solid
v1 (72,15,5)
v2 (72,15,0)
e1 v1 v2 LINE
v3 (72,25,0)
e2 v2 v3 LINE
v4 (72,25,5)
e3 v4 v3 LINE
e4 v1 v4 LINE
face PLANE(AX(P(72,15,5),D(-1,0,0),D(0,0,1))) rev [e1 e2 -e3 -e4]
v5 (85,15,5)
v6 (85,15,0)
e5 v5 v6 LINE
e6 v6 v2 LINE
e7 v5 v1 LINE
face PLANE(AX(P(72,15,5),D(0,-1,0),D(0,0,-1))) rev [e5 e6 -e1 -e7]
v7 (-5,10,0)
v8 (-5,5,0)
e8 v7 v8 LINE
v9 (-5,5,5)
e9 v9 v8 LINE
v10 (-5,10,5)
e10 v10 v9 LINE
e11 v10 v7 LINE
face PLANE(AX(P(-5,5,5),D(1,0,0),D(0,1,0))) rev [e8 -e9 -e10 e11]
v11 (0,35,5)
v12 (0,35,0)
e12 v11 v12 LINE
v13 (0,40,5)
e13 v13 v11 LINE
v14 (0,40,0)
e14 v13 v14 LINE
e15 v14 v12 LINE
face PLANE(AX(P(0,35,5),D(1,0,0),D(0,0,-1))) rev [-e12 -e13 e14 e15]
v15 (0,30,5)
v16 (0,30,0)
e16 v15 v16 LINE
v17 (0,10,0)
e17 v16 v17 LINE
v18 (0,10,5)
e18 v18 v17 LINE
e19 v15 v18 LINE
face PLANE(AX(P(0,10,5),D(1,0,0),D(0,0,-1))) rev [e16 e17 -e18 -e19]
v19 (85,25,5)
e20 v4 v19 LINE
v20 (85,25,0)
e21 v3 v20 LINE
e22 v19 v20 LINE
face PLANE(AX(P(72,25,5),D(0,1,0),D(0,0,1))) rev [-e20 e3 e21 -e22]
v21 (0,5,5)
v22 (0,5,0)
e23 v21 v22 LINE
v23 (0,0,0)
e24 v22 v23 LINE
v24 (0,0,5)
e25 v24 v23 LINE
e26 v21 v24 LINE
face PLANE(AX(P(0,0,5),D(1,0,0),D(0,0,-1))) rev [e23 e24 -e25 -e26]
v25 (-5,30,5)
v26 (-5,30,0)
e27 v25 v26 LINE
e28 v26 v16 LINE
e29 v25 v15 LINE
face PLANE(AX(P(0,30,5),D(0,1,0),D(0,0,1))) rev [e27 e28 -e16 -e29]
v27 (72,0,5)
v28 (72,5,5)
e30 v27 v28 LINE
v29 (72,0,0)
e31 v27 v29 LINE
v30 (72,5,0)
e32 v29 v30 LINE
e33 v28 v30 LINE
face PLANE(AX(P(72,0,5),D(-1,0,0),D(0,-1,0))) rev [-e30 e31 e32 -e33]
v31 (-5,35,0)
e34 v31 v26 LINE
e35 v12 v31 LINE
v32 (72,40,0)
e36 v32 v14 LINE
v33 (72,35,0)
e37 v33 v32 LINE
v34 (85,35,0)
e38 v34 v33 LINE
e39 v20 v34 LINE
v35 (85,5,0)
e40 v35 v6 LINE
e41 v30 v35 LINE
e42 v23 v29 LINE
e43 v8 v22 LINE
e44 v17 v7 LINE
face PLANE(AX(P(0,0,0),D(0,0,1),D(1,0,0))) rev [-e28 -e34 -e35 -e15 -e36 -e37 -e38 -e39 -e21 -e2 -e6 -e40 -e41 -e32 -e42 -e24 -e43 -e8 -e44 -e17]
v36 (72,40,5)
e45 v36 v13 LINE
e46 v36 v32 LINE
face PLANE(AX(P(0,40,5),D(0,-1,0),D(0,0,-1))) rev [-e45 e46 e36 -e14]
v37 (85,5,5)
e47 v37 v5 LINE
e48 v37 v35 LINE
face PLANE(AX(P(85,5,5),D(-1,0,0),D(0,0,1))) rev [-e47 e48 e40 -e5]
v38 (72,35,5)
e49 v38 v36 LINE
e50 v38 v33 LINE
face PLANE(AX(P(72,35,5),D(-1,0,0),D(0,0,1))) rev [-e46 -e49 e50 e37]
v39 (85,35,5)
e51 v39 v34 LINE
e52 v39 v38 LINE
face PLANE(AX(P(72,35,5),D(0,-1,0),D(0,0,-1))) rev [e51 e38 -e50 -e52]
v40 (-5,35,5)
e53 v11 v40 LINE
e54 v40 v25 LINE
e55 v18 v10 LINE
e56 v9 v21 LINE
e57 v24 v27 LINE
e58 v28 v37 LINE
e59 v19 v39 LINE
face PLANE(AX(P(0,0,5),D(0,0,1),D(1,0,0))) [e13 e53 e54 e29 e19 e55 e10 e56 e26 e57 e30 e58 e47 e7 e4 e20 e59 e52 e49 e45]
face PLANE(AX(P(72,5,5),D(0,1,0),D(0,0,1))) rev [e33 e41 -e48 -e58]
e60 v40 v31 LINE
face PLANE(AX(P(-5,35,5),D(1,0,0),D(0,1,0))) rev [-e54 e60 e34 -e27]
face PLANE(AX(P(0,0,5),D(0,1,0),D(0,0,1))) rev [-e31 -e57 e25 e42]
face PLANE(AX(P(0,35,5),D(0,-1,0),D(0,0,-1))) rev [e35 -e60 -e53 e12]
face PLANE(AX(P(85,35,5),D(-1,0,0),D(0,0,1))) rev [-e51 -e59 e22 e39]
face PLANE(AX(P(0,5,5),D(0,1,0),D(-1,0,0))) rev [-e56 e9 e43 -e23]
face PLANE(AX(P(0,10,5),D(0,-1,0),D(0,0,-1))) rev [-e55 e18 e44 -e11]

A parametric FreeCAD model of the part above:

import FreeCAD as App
import Part
import Sketcher

V = App.Vector

doc = App.newDocument("Part")
params = doc.addObject("Spreadsheet::Sheet", "Params")
for row, (alias, value) in enumerate([
    ("sketch1_width", "72 mm"),
    ("sketch1_width2", "13 mm"),
    ("sketch1_width3", "5 mm"),
    ("sketch1_height", "10 mm"),
    ("pad1_length", "5 mm"),
], start=1):
    params.set(f"A{row}", alias)
    params.set(f"B{row}", "=" + value)
    params.setAlias(f"B{row}", alias)

body = doc.addObject("PartDesign::Body", "Body")

# Sketch on XY plane
sketch1 = body.newObject("Sketcher::SketchObject", "Sketch")
sketch1.AttachmentSupport = (doc.getObject("XY_Plane"), [""])
sketch1.MapMode = "FlatFace"
sketch1.addGeometry([
    Part.LineSegment(V(0, 0, 0), V(72, 0, 0)),  # 0
    Part.LineSegment(V(72, 0, 0), V(72, 5, 0)),  # 1
    Part.LineSegment(V(72, 5, 0), V(85, 5, 0)),  # 2
    Part.LineSegment(V(85, 5, 0), V(85, 15, 0)),  # 3
    Part.LineSegment(V(85, 15, 0), V(72, 15, 0)),  # 4
    Part.LineSegment(V(72, 15, 0), V(72, 25, 0)),  # 5
    Part.LineSegment(V(72, 25, 0), V(85, 25, 0)),  # 6
    Part.LineSegment(V(85, 25, 0), V(85, 35, 0)),  # 7
    Part.LineSegment(V(85, 35, 0), V(72, 35, 0)),  # 8
    Part.LineSegment(V(72, 35, 0), V(72, 40, 0)),  # 9
    Part.LineSegment(V(72, 40, 0), V(0, 40, 0)),  # 10
    Part.LineSegment(V(0, 40, 0), V(0, 35, 0)),  # 11
    Part.LineSegment(V(0, 35, 0), V(-5, 35, 0)),  # 12
    Part.LineSegment(V(-5, 35, 0), V(-5, 30, 0)),  # 13
    Part.LineSegment(V(-5, 30, 0), V(0, 30, 0)),  # 14
    Part.LineSegment(V(0, 30, 0), V(0, 10, 0)),  # 15
    Part.LineSegment(V(0, 10, 0), V(-5, 10, 0)),  # 16
    Part.LineSegment(V(-5, 10, 0), V(-5, 5, 0)),  # 17
    Part.LineSegment(V(-5, 5, 0), V(0, 5, 0)),  # 18
    Part.LineSegment(V(0, 5, 0), V(0, 0, 0)),  # 19
], False)
sketch1.addConstraint([
    Sketcher.Constraint("Coincident", 0, 2, 1, 1),
    Sketcher.Constraint("Coincident", 1, 2, 2, 1),
    Sketcher.Constraint("Coincident", 2, 2, 3, 1),
    Sketcher.Constraint("Coincident", 3, 2, 4, 1),
    Sketcher.Constraint("Coincident", 4, 2, 5, 1),
    Sketcher.Constraint("Coincident", 5, 2, 6, 1),
    Sketcher.Constraint("Coincident", 6, 2, 7, 1),
    Sketcher.Constraint("Coincident", 7, 2, 8, 1),
    Sketcher.Constraint("Coincident", 8, 2, 9, 1),
    Sketcher.Constraint("Coincident", 9, 2, 10, 1),
    Sketcher.Constraint("Coincident", 10, 2, 11, 1),
    Sketcher.Constraint("Coincident", 11, 2, 12, 1),
    Sketcher.Constraint("Coincident", 12, 2, 13, 1),
    Sketcher.Constraint("Coincident", 13, 2, 14, 1),
    Sketcher.Constraint("Coincident", 14, 2, 15, 1),
    Sketcher.Constraint("Coincident", 15, 2, 16, 1),
    Sketcher.Constraint("Coincident", 16, 2, 17, 1),
    Sketcher.Constraint("Coincident", 17, 2, 18, 1),
    Sketcher.Constraint("Coincident", 18, 2, 19, 1),
    Sketcher.Constraint("Coincident", 19, 2, 0, 1),
    Sketcher.Constraint("Horizontal", 0),
    Sketcher.Constraint("Vertical", 1),
    Sketcher.Constraint("Horizontal", 2),
    Sketcher.Constraint("Vertical", 3),
    Sketcher.Constraint("Horizontal", 4),
    Sketcher.Constraint("Vertical", 5),
    Sketcher.Constraint("Horizontal", 6),
    Sketcher.Constraint("Vertical", 7),
    Sketcher.Constraint("Horizontal", 8),
    Sketcher.Constraint("Vertical", 9),
    Sketcher.Constraint("Horizontal", 10),
    Sketcher.Constraint("Vertical", 11),
    Sketcher.Constraint("Horizontal", 12),
    Sketcher.Constraint("Vertical", 13),
    Sketcher.Constraint("Horizontal", 14),
    Sketcher.Constraint("Vertical", 15),
    Sketcher.Constraint("Horizontal", 16),
    Sketcher.Constraint("Vertical", 17),
    Sketcher.Constraint("Horizontal", 18),
    Sketcher.Constraint("Vertical", 19),
    Sketcher.Constraint("Coincident", 19, 2, -1, 1),
    Sketcher.Constraint("PointOnObject", 10, 2, -2),
    Sketcher.Constraint("PointOnObject", 14, 2, -2),
    Sketcher.Constraint("Horizontal", 8, 2, 11, 2),
    Sketcher.Constraint("Horizontal", 2, 2, 17, 2),
    Sketcher.Constraint("Vertical", 1, 2, 4, 2),
    Sketcher.Constraint("Vertical", 3, 2, 6, 2),
    Sketcher.Constraint("Vertical", 5, 2, 8, 2),
    Sketcher.Constraint("Vertical", 13, 2, 16, 2),
    Sketcher.Constraint("Equal", 18, 1),
    Sketcher.Constraint("Equal", 3, 5),
    Sketcher.Constraint("Equal", 5, 7),
    Sketcher.Constraint("Equal", 1, 9),
    Sketcher.Constraint("Equal", 11, 13),
    Sketcher.Constraint("Equal", 13, 17),
    Sketcher.Constraint("DistanceX", 0, 1, 0, 2, 72.0),
    Sketcher.Constraint("DistanceX", 2, 1, 2, 2, 13.0),
    Sketcher.Constraint("DistanceX", 12, 2, 12, 1, 5.0),
    Sketcher.Constraint("DistanceY", 3, 1, 3, 2, 10.0),
])
sketch1.setExpression("Constraints[55]", "Params.sketch1_width")
sketch1.setExpression("Constraints[56]", "Params.sketch1_width2")
sketch1.setExpression("Constraints[57]", "Params.sketch1_width3")
sketch1.setExpression("Constraints[58]", "Params.sketch1_height")
pad1 = body.newObject("PartDesign::Pad", "Pad")
pad1.Profile = sketch1
pad1.setExpression("Length", "Params.pad1_length")

doc.recompute()
